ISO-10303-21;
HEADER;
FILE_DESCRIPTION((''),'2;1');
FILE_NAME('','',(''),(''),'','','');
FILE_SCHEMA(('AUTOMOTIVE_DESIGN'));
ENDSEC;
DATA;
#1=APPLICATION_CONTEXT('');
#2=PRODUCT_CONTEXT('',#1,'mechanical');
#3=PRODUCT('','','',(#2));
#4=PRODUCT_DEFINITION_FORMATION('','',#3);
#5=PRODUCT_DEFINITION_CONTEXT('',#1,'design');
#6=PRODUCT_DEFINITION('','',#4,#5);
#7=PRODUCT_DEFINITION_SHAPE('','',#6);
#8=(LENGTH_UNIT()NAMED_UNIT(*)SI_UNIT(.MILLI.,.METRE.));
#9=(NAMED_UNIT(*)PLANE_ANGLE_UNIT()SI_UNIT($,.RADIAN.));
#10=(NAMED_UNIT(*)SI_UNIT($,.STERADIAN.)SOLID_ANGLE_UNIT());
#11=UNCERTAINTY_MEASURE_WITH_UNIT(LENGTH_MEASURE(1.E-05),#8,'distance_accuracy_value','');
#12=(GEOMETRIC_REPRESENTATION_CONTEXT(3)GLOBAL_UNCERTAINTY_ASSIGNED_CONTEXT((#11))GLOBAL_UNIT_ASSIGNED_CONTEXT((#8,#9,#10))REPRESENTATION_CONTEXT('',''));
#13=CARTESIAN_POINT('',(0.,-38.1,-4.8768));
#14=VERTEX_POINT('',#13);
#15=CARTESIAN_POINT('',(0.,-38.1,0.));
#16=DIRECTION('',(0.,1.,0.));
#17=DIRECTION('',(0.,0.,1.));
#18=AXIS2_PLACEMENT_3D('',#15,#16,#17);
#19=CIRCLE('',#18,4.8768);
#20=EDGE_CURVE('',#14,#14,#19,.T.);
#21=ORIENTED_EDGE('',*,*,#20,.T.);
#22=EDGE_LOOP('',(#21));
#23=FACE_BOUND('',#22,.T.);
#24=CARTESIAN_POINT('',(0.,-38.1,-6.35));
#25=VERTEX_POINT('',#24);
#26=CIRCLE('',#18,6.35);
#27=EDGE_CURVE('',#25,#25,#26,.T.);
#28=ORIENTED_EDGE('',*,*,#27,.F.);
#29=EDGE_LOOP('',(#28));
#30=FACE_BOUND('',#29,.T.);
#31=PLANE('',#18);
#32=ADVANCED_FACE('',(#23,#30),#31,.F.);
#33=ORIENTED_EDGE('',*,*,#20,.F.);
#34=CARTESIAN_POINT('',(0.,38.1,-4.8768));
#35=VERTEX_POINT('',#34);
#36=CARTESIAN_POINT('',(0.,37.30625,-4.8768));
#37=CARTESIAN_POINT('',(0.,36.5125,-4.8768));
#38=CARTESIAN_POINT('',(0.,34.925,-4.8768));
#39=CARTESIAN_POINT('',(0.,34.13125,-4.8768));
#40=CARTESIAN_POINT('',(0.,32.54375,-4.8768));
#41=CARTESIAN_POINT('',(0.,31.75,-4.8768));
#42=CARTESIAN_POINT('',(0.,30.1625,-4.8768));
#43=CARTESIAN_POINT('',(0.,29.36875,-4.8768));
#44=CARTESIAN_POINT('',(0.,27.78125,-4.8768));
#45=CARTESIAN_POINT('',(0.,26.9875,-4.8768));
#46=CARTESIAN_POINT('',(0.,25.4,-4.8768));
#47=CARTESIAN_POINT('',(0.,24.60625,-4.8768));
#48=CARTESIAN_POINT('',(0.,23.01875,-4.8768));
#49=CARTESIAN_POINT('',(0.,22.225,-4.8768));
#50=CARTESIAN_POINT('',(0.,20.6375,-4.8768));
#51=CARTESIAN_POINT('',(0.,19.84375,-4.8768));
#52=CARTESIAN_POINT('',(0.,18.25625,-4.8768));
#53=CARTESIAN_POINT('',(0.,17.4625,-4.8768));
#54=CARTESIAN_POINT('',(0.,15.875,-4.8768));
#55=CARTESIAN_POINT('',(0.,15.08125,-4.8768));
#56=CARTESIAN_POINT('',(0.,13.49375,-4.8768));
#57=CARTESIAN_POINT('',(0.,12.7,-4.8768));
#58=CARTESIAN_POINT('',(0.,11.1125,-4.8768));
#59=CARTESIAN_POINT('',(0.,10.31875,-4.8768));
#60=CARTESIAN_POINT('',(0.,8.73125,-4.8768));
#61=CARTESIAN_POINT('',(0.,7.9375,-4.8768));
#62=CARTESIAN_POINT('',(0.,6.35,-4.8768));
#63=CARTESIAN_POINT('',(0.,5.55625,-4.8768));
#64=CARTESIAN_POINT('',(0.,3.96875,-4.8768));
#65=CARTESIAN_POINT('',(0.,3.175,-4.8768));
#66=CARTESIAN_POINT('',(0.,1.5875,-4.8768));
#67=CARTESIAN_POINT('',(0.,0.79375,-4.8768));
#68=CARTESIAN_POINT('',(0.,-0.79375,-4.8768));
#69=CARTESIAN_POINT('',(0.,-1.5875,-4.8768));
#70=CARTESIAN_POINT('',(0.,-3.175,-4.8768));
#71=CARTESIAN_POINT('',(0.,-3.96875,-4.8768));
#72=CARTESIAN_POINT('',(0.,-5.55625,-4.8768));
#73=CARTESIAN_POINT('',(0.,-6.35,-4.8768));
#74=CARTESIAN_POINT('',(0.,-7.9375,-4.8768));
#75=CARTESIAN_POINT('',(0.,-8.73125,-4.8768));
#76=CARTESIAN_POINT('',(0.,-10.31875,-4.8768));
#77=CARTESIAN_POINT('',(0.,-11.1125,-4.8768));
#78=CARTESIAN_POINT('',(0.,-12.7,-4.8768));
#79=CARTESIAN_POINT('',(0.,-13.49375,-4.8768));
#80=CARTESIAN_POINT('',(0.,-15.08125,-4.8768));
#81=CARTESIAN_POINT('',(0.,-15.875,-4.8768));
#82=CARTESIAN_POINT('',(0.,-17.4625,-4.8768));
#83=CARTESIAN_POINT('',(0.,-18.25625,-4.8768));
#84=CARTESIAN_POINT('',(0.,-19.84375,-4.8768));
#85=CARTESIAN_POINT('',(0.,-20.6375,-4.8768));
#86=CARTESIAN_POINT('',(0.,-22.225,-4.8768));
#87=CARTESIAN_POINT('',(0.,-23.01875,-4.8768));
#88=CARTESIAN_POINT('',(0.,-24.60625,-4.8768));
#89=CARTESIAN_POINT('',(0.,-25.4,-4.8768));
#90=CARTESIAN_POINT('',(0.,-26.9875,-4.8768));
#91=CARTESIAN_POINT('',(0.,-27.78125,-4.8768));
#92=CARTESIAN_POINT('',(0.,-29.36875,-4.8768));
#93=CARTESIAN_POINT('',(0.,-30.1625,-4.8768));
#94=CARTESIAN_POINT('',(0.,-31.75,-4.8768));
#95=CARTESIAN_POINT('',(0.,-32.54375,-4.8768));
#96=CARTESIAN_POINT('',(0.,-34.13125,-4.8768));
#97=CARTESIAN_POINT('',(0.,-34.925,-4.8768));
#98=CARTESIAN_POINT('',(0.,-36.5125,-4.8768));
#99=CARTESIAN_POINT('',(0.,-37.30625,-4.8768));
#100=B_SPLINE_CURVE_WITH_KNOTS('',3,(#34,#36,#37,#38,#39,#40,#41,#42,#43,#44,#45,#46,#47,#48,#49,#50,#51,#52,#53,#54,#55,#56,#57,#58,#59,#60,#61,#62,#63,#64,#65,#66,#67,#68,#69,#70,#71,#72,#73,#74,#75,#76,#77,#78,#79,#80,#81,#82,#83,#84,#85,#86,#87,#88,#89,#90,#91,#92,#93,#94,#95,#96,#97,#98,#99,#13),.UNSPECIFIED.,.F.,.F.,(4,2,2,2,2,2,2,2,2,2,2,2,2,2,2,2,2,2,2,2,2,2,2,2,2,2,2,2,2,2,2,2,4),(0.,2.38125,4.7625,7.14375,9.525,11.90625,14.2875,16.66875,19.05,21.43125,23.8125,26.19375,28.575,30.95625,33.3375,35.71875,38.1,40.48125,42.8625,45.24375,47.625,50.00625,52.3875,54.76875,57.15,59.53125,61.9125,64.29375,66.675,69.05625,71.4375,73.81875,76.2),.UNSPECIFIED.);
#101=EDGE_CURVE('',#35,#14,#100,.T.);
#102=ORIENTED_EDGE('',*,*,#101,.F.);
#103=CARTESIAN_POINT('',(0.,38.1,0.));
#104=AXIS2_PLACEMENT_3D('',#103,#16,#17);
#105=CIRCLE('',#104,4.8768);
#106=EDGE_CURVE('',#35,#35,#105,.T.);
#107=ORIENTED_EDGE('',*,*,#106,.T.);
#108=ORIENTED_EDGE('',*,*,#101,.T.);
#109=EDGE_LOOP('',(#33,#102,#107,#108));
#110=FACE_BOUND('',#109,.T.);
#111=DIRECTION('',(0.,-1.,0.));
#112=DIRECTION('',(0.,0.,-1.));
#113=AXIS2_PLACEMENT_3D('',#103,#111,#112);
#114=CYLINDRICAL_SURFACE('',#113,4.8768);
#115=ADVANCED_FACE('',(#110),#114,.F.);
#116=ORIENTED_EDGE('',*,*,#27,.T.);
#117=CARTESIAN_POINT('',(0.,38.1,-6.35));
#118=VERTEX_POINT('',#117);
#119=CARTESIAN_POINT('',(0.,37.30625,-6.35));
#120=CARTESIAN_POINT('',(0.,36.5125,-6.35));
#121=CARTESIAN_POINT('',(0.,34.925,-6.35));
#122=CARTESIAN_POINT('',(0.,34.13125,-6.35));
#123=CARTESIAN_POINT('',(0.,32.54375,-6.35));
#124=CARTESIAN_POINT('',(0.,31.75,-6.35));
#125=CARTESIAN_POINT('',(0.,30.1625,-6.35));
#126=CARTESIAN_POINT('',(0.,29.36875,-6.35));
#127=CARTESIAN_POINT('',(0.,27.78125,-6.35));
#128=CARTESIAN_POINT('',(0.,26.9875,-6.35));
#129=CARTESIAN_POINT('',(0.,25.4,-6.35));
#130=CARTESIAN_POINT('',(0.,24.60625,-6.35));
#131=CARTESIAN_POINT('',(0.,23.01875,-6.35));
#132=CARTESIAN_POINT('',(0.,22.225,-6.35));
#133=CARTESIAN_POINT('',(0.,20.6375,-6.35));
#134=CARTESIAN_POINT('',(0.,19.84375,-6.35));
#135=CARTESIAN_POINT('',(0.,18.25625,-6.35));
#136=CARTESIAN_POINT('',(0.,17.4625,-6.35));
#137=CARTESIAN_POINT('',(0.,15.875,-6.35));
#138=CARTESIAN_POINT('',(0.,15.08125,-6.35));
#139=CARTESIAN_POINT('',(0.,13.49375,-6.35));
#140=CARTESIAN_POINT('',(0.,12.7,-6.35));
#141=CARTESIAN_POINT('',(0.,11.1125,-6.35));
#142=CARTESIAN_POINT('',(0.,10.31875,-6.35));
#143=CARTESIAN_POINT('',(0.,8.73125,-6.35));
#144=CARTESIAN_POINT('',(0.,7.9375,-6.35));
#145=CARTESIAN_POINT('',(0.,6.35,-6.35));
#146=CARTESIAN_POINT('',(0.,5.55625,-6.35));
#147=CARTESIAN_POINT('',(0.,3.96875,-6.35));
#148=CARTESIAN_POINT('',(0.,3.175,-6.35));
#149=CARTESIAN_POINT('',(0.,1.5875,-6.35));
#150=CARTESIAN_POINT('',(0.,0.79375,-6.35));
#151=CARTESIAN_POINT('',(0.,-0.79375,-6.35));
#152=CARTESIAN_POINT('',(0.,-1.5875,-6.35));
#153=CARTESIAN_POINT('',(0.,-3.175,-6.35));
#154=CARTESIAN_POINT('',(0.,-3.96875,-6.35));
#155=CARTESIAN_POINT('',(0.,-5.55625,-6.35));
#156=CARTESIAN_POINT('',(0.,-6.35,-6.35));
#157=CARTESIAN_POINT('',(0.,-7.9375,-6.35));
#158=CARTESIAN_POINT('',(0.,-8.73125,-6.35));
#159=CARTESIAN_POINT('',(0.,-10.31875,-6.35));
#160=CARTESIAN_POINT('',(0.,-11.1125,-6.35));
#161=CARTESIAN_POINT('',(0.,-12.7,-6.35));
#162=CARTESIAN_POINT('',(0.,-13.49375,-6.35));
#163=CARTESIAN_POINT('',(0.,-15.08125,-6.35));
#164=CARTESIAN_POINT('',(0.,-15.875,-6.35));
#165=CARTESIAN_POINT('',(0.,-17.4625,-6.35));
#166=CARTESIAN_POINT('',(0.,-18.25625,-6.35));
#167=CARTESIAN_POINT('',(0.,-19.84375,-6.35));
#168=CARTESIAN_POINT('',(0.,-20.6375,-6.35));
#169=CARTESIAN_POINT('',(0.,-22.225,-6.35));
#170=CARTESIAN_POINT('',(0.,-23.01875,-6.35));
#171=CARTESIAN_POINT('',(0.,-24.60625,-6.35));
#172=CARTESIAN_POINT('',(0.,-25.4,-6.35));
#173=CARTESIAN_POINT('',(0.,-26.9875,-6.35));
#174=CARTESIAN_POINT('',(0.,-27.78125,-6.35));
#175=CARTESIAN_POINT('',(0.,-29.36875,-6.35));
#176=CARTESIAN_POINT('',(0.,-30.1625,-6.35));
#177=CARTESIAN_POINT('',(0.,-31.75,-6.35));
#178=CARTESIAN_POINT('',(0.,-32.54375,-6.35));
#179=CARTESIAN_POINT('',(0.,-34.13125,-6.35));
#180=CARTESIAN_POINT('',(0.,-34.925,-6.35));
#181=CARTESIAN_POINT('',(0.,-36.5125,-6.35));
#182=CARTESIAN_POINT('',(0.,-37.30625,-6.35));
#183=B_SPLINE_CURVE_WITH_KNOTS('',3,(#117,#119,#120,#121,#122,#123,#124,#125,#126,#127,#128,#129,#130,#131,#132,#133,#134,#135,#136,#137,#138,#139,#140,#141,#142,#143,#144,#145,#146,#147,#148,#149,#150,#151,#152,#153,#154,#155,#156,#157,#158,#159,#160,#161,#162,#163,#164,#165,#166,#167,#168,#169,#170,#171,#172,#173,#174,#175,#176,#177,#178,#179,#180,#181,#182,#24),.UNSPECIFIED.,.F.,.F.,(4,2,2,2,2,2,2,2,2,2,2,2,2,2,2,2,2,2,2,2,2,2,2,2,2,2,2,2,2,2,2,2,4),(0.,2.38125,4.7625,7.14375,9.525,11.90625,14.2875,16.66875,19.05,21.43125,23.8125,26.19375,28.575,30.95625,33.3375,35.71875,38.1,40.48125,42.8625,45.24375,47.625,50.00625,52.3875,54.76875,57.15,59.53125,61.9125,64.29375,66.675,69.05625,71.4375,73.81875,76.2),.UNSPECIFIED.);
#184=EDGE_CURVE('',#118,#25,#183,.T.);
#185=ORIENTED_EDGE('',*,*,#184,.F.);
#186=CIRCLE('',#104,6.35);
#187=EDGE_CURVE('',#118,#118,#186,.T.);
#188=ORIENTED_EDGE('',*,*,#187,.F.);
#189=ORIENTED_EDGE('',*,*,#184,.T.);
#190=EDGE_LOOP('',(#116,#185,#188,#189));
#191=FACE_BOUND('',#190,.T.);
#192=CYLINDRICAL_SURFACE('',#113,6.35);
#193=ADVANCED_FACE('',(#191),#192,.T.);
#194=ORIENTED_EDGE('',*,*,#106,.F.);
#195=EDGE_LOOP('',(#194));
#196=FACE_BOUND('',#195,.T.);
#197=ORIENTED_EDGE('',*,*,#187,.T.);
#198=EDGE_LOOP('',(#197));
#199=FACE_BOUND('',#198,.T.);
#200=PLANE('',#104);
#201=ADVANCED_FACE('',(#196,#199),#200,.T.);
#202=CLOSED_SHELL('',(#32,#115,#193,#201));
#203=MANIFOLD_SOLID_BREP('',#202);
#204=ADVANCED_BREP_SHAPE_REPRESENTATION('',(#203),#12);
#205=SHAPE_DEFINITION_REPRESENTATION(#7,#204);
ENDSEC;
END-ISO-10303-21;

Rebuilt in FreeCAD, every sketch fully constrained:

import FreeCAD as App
import Part
import Sketcher

V = App.Vector
Q = App.Units.Quantity

doc = App.newDocument("Part")
body = doc.addObject("PartDesign::Body", "Body")

# Sketch on XZ plane
sketch1 = body.newObject("Sketcher::SketchObject", "Sketch")
sketch1.AttachmentSupport = (doc.getObject("XZ_Plane"), [""])
sketch1.MapMode = "FlatFace"
sketch1.addGeometry([
    Part.Circle(V(0, 0, 0), V(0, 0, 1), 6.35),
    Part.Circle(V(0, 0, 0), V(0, 0, 1), 4.8768),
], False)
sketch1.addConstraint([
    Sketcher.Constraint("Coincident", 0, 3, -1, 1),
    Sketcher.Constraint("Coincident", 1, 3, -1, 1),
    Sketcher.Constraint("Diameter", 0, Q("0.5 in")),
    Sketcher.Constraint("Diameter", 1, Q("0.384 in")),
])
pad1 = body.newObject("PartDesign::Pad", "Pad")
pad1.Profile = sketch1
pad1.Length = Q("3 in")
pad1.Midplane = True

doc.recompute()
